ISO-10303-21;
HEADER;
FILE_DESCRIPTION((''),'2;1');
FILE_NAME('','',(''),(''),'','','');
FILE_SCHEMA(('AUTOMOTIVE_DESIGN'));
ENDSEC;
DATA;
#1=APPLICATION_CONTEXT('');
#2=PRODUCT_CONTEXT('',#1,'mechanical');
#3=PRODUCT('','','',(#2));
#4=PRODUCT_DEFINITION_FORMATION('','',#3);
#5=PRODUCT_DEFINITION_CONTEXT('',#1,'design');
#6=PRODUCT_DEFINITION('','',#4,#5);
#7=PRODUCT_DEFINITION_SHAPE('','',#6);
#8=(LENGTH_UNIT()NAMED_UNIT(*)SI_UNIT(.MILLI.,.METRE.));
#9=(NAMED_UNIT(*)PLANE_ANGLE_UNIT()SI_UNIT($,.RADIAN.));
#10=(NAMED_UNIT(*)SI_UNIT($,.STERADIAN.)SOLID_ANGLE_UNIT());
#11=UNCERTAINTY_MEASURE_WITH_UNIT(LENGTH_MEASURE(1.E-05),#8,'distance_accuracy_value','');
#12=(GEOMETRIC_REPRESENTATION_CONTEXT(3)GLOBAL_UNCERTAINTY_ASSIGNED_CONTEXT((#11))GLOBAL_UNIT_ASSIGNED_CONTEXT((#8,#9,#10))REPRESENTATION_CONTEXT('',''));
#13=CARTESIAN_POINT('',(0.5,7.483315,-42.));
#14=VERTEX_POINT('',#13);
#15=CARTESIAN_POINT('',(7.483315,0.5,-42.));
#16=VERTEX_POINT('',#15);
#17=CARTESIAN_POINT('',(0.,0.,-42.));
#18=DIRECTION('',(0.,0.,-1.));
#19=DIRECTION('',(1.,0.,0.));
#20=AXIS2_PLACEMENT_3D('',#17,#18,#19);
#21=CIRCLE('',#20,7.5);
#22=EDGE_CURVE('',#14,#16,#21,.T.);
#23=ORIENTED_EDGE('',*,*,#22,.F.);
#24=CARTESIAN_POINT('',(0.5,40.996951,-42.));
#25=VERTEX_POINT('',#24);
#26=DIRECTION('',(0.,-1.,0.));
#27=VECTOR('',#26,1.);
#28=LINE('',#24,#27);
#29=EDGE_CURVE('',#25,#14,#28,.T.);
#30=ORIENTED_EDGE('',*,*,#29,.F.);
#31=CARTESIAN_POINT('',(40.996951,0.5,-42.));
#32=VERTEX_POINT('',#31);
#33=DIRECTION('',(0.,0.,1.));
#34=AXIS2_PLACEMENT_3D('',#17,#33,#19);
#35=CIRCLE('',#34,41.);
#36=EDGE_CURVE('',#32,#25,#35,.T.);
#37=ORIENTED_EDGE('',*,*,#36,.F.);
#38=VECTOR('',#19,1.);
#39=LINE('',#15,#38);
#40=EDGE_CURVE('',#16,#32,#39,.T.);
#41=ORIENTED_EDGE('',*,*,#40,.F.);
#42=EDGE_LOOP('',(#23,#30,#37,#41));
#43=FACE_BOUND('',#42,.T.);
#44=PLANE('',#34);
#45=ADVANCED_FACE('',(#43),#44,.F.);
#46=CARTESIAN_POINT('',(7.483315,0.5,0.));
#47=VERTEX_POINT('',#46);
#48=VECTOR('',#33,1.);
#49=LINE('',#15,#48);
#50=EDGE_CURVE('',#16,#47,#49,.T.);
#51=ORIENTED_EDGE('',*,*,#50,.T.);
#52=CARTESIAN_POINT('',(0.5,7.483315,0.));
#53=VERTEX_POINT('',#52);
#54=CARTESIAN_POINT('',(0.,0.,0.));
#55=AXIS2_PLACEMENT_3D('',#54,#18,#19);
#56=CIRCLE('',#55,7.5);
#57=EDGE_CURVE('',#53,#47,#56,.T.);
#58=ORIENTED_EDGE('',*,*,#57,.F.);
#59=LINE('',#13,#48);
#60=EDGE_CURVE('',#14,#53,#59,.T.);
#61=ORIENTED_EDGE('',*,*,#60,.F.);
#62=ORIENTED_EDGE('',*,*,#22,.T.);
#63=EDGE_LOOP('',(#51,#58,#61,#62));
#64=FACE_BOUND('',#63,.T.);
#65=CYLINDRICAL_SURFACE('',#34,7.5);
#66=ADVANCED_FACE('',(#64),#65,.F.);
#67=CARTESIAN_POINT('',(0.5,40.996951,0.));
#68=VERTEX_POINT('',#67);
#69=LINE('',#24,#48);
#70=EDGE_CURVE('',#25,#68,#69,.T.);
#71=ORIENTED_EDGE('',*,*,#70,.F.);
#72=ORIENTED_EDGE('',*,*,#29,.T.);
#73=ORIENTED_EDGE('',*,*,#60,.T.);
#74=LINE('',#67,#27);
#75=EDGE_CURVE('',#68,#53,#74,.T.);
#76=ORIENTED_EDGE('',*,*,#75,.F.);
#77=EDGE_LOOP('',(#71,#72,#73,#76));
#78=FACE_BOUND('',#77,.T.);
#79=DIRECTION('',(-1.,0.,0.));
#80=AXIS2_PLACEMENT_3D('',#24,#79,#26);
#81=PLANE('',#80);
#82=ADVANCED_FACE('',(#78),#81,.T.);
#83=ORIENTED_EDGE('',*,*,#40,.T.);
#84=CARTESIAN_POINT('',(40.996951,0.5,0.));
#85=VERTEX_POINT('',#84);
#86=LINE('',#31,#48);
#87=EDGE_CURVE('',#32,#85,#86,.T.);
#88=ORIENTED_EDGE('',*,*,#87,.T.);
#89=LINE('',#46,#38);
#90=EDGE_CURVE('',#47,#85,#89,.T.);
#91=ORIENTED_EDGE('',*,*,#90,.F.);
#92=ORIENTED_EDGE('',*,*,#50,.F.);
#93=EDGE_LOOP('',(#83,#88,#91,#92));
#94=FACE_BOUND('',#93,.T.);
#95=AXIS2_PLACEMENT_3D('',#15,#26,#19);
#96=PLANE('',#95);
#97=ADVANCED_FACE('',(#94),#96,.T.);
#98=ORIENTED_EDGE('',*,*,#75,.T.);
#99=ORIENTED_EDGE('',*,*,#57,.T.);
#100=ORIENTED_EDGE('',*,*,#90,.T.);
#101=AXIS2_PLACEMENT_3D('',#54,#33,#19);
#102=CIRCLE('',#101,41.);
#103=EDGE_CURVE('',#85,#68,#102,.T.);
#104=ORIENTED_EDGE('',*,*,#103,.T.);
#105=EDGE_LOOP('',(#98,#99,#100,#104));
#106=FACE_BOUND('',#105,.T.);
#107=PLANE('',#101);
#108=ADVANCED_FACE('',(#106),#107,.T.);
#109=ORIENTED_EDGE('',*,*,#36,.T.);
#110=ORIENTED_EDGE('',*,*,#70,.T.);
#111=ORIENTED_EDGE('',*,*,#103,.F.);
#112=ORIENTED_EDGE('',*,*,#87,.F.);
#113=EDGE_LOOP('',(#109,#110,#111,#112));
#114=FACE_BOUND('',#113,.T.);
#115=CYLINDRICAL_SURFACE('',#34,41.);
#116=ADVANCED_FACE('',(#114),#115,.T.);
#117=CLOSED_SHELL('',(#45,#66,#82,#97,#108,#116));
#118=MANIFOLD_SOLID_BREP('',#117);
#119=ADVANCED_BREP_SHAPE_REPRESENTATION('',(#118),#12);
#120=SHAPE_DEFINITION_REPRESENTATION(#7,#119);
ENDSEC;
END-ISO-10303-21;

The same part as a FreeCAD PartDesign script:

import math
import FreeCAD as App
import Part
import Sketcher

V = App.Vector
Q = App.Units.Quantity

doc = App.newDocument("Part")
body = doc.addObject("PartDesign::Body", "Body")

sketch1 = body.newObject("Sketcher::SketchObject", "Sketch")
sketch1.AttachmentSupport = (doc.getObject("XY_Plane"), [""])
sketch1.MapMode = "FlatFace"
sketch1.addGeometry([
    Part.LineSegment(V(0, 41, 0), V(0, 7, 0)),
    Part.ArcOfCircle(Part.Circle(V(0, 0, 0), V(0, 0, 1), 8), math.radians(4), math.radians(86)),
    Part.LineSegment(V(7, 0, 0), V(41, 0, 0)),
    Part.ArcOfCircle(Part.Circle(V(0, 0, 0), V(0, 0, 1), 41), math.radians(1), math.radians(89)),
], False)
sketch1.addConstraint([
    Sketcher.Constraint("Coincident", 0, 2, 1, 2),
    Sketcher.Constraint("Coincident", 1, 1, 2, 1),
    Sketcher.Constraint("Coincident", 2, 2, 3, 1),
    Sketcher.Constraint("Coincident", 3, 2, 0, 1),
    Sketcher.Constraint("Vertical", 0),
    Sketcher.Constraint("Horizontal", 2),
    Sketcher.Constraint("Coincident", 1, 3, -1, 1),
    Sketcher.Constraint("Coincident", 3, 3, -1, 1),
    Sketcher.Constraint("Equal", 2, 0),
    Sketcher.Constraint("Radius", 3, Q("41 mm")),
    Sketcher.Constraint("Radius", 1, Q("7.5 mm")),
    Sketcher.Constraint("DistanceX", -1, 1, 0, 2, Q("0.5 mm")),
])
pad1 = body.newObject("PartDesign::Pad", "Pad")
pad1.Profile = sketch1
pad1.Length = 42
pad1.Reversed = True

doc.recompute()
